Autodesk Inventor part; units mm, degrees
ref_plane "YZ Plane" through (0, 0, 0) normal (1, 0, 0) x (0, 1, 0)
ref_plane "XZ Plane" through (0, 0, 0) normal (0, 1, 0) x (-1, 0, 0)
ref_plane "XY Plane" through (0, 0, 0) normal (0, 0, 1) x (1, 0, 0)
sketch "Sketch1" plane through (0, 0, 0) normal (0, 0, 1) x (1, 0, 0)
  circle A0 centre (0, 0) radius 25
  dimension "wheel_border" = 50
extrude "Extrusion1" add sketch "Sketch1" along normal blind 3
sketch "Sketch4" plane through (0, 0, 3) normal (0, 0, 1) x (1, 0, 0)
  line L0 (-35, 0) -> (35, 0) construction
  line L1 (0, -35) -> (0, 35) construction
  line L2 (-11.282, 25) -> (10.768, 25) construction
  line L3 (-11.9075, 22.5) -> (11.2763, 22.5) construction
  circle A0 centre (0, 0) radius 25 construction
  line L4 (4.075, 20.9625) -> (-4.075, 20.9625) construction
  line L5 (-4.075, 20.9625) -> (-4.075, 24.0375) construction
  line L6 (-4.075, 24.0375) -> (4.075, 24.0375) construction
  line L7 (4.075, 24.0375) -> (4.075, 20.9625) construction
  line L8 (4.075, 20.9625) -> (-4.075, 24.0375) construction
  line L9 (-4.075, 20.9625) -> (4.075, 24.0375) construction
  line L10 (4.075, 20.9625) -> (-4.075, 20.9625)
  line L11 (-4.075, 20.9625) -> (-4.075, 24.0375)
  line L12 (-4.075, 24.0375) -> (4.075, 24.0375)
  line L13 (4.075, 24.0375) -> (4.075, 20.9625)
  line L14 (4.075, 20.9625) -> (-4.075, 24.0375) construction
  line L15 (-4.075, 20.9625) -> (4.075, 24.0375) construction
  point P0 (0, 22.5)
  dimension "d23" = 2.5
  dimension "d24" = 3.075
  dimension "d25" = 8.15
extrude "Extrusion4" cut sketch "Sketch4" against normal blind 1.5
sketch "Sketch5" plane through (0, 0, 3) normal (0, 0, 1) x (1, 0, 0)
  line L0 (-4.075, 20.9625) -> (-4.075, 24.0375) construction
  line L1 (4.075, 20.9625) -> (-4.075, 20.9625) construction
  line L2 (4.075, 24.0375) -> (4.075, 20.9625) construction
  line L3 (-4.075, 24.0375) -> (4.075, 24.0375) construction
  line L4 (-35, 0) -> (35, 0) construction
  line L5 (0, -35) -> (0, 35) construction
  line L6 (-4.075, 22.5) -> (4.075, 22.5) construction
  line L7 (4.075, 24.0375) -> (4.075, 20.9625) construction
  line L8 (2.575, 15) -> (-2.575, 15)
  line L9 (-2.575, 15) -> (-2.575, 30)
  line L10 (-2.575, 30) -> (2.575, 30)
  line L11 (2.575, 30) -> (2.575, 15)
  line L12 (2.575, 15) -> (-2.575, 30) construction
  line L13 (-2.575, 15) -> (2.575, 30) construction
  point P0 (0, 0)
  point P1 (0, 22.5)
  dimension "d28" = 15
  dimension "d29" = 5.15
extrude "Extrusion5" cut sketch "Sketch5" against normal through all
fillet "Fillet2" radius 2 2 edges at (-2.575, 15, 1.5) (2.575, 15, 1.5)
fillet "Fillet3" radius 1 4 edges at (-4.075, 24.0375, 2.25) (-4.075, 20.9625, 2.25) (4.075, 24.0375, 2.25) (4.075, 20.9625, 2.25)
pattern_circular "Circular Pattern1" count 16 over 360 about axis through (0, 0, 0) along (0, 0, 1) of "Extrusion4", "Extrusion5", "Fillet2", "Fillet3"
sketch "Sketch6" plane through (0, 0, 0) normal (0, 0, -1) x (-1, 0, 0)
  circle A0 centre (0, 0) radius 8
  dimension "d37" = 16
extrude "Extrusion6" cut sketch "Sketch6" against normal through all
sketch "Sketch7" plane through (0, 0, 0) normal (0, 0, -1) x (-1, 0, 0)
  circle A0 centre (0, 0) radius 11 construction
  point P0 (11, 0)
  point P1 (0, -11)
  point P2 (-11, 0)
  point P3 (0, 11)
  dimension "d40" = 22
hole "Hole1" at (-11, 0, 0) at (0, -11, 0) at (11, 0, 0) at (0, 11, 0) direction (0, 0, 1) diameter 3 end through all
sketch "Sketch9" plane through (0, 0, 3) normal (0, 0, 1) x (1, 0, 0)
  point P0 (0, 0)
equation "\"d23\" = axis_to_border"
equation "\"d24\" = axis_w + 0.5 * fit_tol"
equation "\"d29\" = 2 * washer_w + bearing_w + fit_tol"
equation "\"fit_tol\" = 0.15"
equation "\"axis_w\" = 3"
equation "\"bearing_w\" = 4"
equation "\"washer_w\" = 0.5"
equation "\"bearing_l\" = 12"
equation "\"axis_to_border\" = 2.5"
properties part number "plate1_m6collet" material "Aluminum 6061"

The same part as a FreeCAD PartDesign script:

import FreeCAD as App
import Part
import Sketcher

V = App.Vector
Q = App.Units.Quantity


def edges_at(feature, points):
    """Names of the edges that pass closest to the given points."""
    edges = feature.Shape.Edges
    near = lambda p: min(range(len(edges)), key=lambda i: edges[i].distToShape(Part.Vertex(*p))[0])
    return sorted({f"Edge{near(p) + 1}" for p in points})


def add_polygon(sketch, points):
    """Adds a closed chain of lines whose ends are joined by coincident constraints."""
    first, n = sketch.GeometryCount, len(points)
    for a, b in zip(points, points[1:] + points[:1]):
        sketch.addGeometry(Part.LineSegment(App.Vector(*a, 0), App.Vector(*b, 0)), False)
    for i in range(n):
        sketch.addConstraint(Sketcher.Constraint("Coincident", first + i, 2, first + (i + 1) % n, 1))

doc = App.newDocument("Part")
params = doc.addObject("Spreadsheet::Sheet", "Params")
for row, (alias, value) in enumerate([
    ("sketch1_diameter", "50 mm"),
    ("pad1_length", "3 mm"),
    ("sketch2_width", "8.15 mm"),
    ("pocket1_length", "1.5 mm"),
    ("sketch3_height", "15 mm"),
    ("sketch3_width", "5.15 mm"),
    ("fillet_radius", "2 mm"),
    ("fillet2_radius", "1 mm"),
    ("sketch4_diameter", "16 mm"),
    ("sketch5_diameter", "3 mm"),
    ("hole_diameter", "3 mm"),
], start=1):
    params.set(f"A{row}", alias)
    params.set(f"B{row}", "=" + value)
    params.setAlias(f"B{row}", alias)

body = doc.addObject("PartDesign::Body", "Body")

# Sketch on XY plane
sketch1 = body.newObject("Sketcher::SketchObject", "Sketch")
sketch1.AttachmentSupport = (doc.getObject("XY_Plane"), [""])
sketch1.MapMode = "FlatFace"
sketch1.addGeometry(Part.Circle(V(0, 0, 0), V(0, 0, 1), 25), False)
sketch1.addConstraint([
    Sketcher.Constraint("Coincident", 0, 3, -1, 1),
    Sketcher.Constraint("Diameter", 0, Q("50 mm")),
])
sketch1.setExpression("Constraints[1]", "Params.sketch1_diameter")
pad1 = body.newObject("PartDesign::Pad", "Pad")
pad1.Profile = sketch1
pad1.setExpression("Length", "Params.pad1_length")

# Sketch on XY plane
sketch2 = body.newObject("Sketcher::SketchObject", "Sketch001")
sketch2.AttachmentSupport = (doc.getObject("XY_Plane"), [""])
sketch2.MapMode = "FlatFace"
sketch2.AttachmentOffset = App.Placement(V(0, 0, 3), App.Rotation())
add_polygon(sketch2, [(-4.075, 20.9625), (4.075, 20.9625), (4.075, 24.0375), (-4.075, 24.0375)])  # lines 0-3
sketch2.addConstraint([
    Sketcher.Constraint("Horizontal", 0),
    Sketcher.Constraint("Vertical", 1),
    Sketcher.Constraint("Horizontal", 2),
    Sketcher.Constraint("Vertical", 3),
    Sketcher.Constraint("DistanceX", 0, 1, 0, 2, Q("8.15 mm")),
    Sketcher.Constraint("DistanceY", 1, 1, 1, 2, Q("3.075 mm")),
    Sketcher.Constraint("DistanceX", -1, 1, 0, 2, Q("4.075 mm")),
    Sketcher.Constraint("DistanceY", -1, 1, 0, 2, Q("20.9625 mm")),
])
sketch2.setExpression("Constraints[8]", "Params.sketch2_width")
pocket1 = body.newObject("PartDesign::Pocket", "Pocket")
pocket1.Profile = sketch2
pocket1.setExpression("Length", "Params.pocket1_length")

# Sketch on XY plane
sketch3 = body.newObject("Sketcher::SketchObject", "Sketch002")
sketch3.AttachmentSupport = (doc.getObject("XY_Plane"), [""])
sketch3.MapMode = "FlatFace"
sketch3.AttachmentOffset = App.Placement(V(0, 0, 3), App.Rotation())
add_polygon(sketch3, [(-2.575, 15), (2.575, 15), (2.575, 30), (-2.575, 30)])  # lines 0-3
sketch3.addConstraint([
    Sketcher.Constraint("Horizontal", 0),
    Sketcher.Constraint("Vertical", 1),
    Sketcher.Constraint("Horizontal", 2),
    Sketcher.Constraint("Vertical", 3),
    Sketcher.Constraint("DistanceY", 1, 1, 1, 2, Q("15 mm")),
    Sketcher.Constraint("DistanceY", -1, 1, 0, 2, Q("15 mm")),
    Sketcher.Constraint("DistanceX", 0, 1, 0, 2, Q("5.15 mm")),
    Sketcher.Constraint("DistanceX", -1, 1, 0, 2, Q("2.575 mm")),
])
sketch3.setExpression("Constraints[8]", "Params.sketch3_height")
sketch3.setExpression("Constraints[10]", "Params.sketch3_width")
pocket2 = body.newObject("PartDesign::Pocket", "Pocket001")
pocket2.Profile = sketch3
pocket2.Type = "ThroughAll"
doc.recompute()

fillet = body.newObject("PartDesign::Fillet", "Fillet")
fillet.Base = (pocket2, edges_at(pocket2, [(-2.575, 15, 1.5), (2.575, 15, 1.5)]))
fillet.setExpression("Radius", "Params.fillet_radius")
doc.recompute()

fillet2 = body.newObject("PartDesign::Fillet", "Fillet001")
fillet2.Base = (fillet, edges_at(fillet, [
    (-4.075, 24.038, 2.25),
    (-4.075, 20.962, 2.25),
    (4.075, 24.038, 2.25),
    (4.075, 20.962, 2.25),
]))
fillet2.setExpression("Radius", "Params.fillet2_radius")
doc.recompute()

polarpattern = body.newObject("PartDesign::PolarPattern", "PolarPattern")
polarpattern.Originals = [pocket1, pocket2, fillet, fillet2]
polarpattern.Axis = (doc.getObject("Z_Axis"), [""])
polarpattern.Angle = 360
polarpattern.Occurrences = 16
body.Tip = polarpattern

# Sketch on XY plane
sketch4 = body.newObject("Sketcher::SketchObject", "Sketch003")
sketch4.AttachmentSupport = (doc.getObject("XY_Plane"), [""])
sketch4.MapMode = "FlatFace"
sketch4.addGeometry(Part.Circle(V(0, 0, 0), V(0, 0, 1), 8), False)
sketch4.addConstraint([
    Sketcher.Constraint("Coincident", 0, 3, -1, 1),
    Sketcher.Constraint("Diameter", 0, Q("16 mm")),
])
sketch4.setExpression("Constraints[1]", "Params.sketch4_diameter")
pocket3 = body.newObject("PartDesign::Pocket", "Pocket002")
pocket3.Profile = sketch4
pocket3.Type = "ThroughAll"
pocket3.Reversed = True

# Sketch on XY plane
sketch5 = body.newObject("Sketcher::SketchObject", "Sketch004")
sketch5.AttachmentSupport = (doc.getObject("XY_Plane"), [""])
sketch5.MapMode = "FlatFace"
sketch5.addGeometry([
    Part.Circle(V(-11, 0, 0), V(0, 0, 1), 1.5),
    Part.Circle(V(0, -11, 0), V(0, 0, 1), 1.5),
    Part.Circle(V(11, 0, 0), V(0, 0, 1), 1.5),
    Part.Circle(V(0, 11, 0), V(0, 0, 1), 1.5),
], False)
sketch5.addConstraint([
    Sketcher.Constraint("Equal", 0, 1),
    Sketcher.Constraint("Equal", 1, 2),
    Sketcher.Constraint("Equal", 2, 3),
    Sketcher.Constraint("Symmetric", 0, 3, 2, 3, -1, 1),
    Sketcher.Constraint("Symmetric", 1, 3, 3, 3, -1, 1),
    Sketcher.Constraint("PointOnObject", 0, 3, -1),
    Sketcher.Constraint("PointOnObject", 1, 3, -2),
    Sketcher.Constraint("Diameter", 0, Q("3 mm")),
    Sketcher.Constraint("DistanceX", 0, 3, -1, 1, Q("11 mm")),
    Sketcher.Constraint("DistanceY", 1, 3, -1, 1, Q("11 mm")),
])
sketch5.setExpression("Constraints[7]", "Params.sketch5_diameter")
doc.recompute()
hole = body.newObject("PartDesign::Hole", "Hole")
hole.Profile = sketch5
hole.ThreadType = "None"
hole.setExpression("Diameter", "Params.hole_diameter")
hole.DepthType = "ThroughAll"
hole.Reversed = True

doc.recompute()
